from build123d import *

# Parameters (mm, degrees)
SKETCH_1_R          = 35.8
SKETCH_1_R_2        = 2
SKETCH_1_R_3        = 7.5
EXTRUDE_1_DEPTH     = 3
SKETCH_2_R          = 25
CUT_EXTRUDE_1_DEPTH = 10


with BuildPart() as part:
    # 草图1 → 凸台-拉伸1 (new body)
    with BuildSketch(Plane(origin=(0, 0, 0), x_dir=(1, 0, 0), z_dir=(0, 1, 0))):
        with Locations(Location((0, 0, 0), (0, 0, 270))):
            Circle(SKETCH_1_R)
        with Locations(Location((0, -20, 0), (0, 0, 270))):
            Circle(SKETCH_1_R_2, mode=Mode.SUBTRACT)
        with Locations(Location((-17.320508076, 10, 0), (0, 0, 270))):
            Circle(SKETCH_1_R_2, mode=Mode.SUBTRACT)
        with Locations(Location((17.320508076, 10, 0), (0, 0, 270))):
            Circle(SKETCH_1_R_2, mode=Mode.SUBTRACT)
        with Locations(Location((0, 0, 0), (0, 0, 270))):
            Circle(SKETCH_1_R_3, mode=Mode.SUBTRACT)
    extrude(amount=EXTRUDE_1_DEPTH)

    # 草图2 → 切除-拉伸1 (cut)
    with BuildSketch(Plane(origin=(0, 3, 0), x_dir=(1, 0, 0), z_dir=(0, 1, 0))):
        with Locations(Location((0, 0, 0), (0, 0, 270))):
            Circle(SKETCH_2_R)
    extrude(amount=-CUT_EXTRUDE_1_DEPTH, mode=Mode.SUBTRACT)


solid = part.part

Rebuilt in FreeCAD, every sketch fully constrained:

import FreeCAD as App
import Part
import Sketcher

doc = App.newDocument("Part")
body = doc.addObject("PartDesign::Body", "Body")

# Sketch on XZ plane
sketch1 = body.newObject("Sketcher::SketchObject", "Sketch")
sketch1.AttachmentSupport = (doc.getObject("XZ_Plane"), [""])
sketch1.MapMode = "FlatFace"
sketch1.addGeometry(Part.Circle(App.Vector(0, 0, 0), App.Vector(0, 0, 1), 35.8), False)
sketch1.addGeometry(Part.Circle(App.Vector(-17.3, -10, 0), App.Vector(0, 0, 1), 2), False)
sketch1.addGeometry(Part.Circle(App.Vector(0, 0, 0), App.Vector(0, 0, 1), 7.5), False)
sketch1.addGeometry(Part.Circle(App.Vector(17.3, -10, 0), App.Vector(0, 0, 1), 2), False)
sketch1.addGeometry(Part.Circle(App.Vector(0, 20, 0), App.Vector(0, 0, 1), 2), False)
sketch1.addConstraint(Sketcher.Constraint("Coincident", 0, 3, -1, 1))
sketch1.addConstraint(Sketcher.Constraint("Coincident", 2, 3, -1, 1))
sketch1.addConstraint(Sketcher.Constraint("Equal", 1, 3))
sketch1.addConstraint(Sketcher.Constraint("Equal", 3, 4))
sketch1.addConstraint(Sketcher.Constraint("Symmetric", 1, 3, 3, 3, -2))
sketch1.addConstraint(Sketcher.Constraint("PointOnObject", 4, 3, -2))
sketch1.addConstraint(Sketcher.Constraint("Diameter", 1, 4.0))
sketch1.addConstraint(Sketcher.Constraint("Diameter", 2, 15.0))
sketch1.addConstraint(Sketcher.Constraint("Diameter", 0, 71.6))
sketch1.addConstraint(Sketcher.Constraint("DistanceY", 1, 3, -1, 1, 10.0))
sketch1.addConstraint(Sketcher.Constraint("DistanceY", -1, 1, 4, 3, 20.0))
sketch1.addConstraint(Sketcher.Constraint("DistanceX", 1, 3, -1, 1, 17.320508))
pad1 = body.newObject("PartDesign::Pad", "Pad")
pad1.Profile = sketch1
pad1.Length = 3
pad1.Reversed = True

# Sketch on XZ plane
sketch2 = body.newObject("Sketcher::SketchObject", "Sketch001")
sketch2.AttachmentSupport = (doc.getObject("XZ_Plane"), [""])
sketch2.MapMode = "FlatFace"
sketch2.AttachmentOffset = App.Placement(App.Vector(0, 0, -3), App.Rotation())
sketch2.addGeometry(Part.Circle(App.Vector(0, 0, 0), App.Vector(0, 0, 1), 25), False)
sketch2.addConstraint(Sketcher.Constraint("Coincident", 0, 3, -1, 1))
sketch2.addConstraint(Sketcher.Constraint("Diameter", 0, 50.0))
pocket1 = body.newObject("PartDesign::Pocket", "Pocket")
pocket1.Profile = sketch2
pocket1.Length = 10
pocket1.Reversed = True

doc.recompute()
